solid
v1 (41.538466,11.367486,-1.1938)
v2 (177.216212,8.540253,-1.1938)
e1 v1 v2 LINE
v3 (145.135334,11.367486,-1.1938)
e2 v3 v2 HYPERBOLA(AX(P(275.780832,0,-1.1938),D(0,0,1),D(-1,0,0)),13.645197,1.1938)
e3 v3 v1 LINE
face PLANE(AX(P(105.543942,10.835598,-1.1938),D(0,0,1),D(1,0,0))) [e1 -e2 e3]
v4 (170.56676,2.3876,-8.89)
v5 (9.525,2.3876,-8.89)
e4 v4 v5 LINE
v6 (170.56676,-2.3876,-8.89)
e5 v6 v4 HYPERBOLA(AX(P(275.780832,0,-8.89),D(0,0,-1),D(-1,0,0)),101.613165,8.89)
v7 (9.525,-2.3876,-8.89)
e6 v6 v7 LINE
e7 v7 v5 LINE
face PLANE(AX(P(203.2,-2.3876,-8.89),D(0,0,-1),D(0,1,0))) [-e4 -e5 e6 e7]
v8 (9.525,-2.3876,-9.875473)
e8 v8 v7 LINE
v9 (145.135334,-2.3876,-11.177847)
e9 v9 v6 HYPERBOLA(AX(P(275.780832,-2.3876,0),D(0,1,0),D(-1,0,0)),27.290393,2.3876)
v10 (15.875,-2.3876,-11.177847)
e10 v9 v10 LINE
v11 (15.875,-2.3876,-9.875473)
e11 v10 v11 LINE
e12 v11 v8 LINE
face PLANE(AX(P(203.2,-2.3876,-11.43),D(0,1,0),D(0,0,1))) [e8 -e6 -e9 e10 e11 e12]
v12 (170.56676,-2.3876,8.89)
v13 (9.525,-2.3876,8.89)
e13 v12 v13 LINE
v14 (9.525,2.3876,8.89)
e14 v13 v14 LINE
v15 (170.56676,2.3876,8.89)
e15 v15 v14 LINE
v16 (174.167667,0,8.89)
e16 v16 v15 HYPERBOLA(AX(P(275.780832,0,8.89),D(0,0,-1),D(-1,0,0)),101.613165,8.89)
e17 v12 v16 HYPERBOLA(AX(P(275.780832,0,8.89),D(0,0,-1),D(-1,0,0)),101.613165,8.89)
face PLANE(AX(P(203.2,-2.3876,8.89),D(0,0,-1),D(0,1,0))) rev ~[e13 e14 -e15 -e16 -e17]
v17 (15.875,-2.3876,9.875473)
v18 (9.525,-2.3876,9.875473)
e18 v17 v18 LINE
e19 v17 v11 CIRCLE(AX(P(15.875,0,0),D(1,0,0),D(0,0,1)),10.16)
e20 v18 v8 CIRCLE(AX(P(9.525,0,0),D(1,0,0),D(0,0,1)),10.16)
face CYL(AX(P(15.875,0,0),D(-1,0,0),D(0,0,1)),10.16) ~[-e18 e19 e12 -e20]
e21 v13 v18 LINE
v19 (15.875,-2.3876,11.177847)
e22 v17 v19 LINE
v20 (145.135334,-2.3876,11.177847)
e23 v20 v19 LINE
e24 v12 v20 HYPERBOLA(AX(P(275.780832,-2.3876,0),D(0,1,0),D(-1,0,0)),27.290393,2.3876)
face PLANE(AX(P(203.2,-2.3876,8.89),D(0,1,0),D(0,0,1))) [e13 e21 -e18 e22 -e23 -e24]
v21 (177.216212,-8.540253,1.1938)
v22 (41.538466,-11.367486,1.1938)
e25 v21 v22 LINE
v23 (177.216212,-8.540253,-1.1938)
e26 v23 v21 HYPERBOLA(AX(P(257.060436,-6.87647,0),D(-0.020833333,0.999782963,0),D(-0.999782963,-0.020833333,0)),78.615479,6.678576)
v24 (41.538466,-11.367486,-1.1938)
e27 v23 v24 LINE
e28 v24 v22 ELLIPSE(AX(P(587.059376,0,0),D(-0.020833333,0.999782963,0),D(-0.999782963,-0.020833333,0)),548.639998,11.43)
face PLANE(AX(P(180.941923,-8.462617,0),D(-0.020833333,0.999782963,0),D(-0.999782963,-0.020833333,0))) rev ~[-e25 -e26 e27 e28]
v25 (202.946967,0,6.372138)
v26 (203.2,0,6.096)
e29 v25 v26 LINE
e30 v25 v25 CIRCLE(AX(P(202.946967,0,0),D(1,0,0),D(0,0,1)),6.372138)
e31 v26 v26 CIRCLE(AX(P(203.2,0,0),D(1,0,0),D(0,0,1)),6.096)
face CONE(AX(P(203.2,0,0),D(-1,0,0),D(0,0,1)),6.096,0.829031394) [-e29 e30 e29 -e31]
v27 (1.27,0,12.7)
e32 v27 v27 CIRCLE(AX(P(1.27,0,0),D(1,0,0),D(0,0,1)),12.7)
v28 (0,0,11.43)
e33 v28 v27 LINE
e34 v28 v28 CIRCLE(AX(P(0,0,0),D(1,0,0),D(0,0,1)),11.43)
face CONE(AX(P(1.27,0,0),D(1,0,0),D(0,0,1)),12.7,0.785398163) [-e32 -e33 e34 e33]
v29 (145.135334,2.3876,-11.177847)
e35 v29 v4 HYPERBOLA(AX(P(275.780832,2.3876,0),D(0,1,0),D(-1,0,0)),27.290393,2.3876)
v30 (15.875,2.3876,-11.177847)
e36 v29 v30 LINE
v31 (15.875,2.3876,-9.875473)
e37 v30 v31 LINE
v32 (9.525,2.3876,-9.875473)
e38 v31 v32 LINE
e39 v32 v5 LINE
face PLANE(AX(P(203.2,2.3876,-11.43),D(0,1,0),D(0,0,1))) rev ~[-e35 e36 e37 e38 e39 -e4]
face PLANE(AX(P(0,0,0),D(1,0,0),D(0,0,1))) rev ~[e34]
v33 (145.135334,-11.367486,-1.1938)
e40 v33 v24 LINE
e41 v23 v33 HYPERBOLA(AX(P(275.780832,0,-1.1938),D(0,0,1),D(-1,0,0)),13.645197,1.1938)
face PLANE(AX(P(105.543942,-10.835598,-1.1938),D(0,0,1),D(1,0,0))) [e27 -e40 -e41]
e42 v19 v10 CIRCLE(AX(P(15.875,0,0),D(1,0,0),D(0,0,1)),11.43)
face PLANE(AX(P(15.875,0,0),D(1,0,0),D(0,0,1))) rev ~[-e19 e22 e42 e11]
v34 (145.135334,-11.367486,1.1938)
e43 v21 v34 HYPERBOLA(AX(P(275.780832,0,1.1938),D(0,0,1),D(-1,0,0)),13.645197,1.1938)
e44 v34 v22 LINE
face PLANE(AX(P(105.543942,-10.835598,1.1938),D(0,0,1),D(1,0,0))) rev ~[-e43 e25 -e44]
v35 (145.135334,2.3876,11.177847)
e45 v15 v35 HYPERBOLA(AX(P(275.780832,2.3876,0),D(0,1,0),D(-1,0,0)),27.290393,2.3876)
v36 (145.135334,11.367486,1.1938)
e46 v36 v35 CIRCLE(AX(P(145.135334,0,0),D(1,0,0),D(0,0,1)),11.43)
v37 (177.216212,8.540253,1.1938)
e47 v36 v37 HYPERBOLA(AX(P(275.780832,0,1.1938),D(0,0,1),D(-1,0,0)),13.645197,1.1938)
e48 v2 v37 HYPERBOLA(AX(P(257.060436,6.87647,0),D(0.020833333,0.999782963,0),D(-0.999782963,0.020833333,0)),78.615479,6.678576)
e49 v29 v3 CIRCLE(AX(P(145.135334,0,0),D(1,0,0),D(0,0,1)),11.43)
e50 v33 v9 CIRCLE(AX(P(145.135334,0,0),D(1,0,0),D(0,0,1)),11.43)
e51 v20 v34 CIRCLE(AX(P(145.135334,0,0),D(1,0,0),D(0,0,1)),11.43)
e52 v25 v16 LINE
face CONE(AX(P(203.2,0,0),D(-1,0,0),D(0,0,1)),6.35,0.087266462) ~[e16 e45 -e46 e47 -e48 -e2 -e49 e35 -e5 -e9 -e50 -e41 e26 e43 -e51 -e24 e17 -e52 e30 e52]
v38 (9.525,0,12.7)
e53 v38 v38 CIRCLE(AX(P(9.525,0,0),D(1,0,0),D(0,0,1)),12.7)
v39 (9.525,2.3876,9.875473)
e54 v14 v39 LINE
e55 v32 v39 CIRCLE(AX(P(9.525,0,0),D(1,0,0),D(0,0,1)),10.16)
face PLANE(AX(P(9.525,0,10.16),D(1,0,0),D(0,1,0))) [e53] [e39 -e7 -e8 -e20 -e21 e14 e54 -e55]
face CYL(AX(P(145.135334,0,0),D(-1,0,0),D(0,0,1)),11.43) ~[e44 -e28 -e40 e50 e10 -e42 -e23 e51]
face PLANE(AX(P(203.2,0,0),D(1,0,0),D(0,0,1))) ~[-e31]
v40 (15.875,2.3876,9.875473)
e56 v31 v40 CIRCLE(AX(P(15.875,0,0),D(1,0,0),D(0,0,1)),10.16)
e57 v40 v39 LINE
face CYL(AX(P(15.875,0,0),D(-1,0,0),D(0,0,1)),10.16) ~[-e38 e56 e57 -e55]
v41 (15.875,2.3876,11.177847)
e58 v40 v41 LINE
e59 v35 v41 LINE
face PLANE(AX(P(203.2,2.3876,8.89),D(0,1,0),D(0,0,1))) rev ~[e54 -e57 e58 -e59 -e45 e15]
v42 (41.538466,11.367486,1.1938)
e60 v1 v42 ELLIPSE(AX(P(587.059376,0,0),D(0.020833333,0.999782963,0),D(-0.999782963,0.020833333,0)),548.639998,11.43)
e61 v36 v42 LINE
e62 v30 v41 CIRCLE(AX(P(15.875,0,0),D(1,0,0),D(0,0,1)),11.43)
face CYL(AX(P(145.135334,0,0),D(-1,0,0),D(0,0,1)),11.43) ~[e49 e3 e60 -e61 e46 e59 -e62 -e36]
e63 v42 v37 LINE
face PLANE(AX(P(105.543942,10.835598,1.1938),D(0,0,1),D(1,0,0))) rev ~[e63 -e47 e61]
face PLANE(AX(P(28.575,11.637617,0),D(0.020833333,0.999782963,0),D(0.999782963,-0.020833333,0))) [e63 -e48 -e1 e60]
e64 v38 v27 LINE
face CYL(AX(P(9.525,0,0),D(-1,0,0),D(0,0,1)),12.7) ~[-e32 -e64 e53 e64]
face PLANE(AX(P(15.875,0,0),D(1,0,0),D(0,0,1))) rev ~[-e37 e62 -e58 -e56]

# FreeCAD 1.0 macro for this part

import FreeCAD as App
import Part
import Sketcher

V = App.Vector
Q = App.Units.Quantity


def edges_at(feature, points):
    """Names of the edges that pass closest to the given points."""
    edges = feature.Shape.Edges
    near = lambda p: min(range(len(edges)), key=lambda i: edges[i].distToShape(Part.Vertex(*p))[0])
    return sorted({f"Edge{near(p) + 1}" for p in points})

doc = App.newDocument("Part")
body = doc.addObject("PartDesign::Body", "Body")

# Sketch on XZ plane
sketch1 = body.newObject("Sketcher::SketchObject", "Sketch")
sketch1.AttachmentSupport = (doc.getObject("XZ_Plane"), [""])
sketch1.MapMode = "FlatFace"
sketch1.addGeometry([
    Part.LineSegment(V(0, 12.7, 0), V(0, 0, 0)),  # 0
    Part.LineSegment(V(0, 0, 0), V(203.2, 0, 0)),  # 1
    Part.LineSegment(V(203.2, 0, 0), V(203.2, 6.3, 0)),  # 2
    Part.LineSegment(V(203.2, 6.3, 0), V(145.1, 11.4, 0)),  # 3
    Part.LineSegment(V(145.1, 11.4, 0), V(15.9, 11.4, 0)),  # 4
    Part.LineSegment(V(15.9, 11.4, 0), V(15.9, 10.2, 0)),  # 5
    Part.LineSegment(V(15.9, 10.2, 0), V(9.5, 10.2, 0)),  # 6
    Part.LineSegment(V(9.5, 10.2, 0), V(9.5, 12.7, 0)),  # 7
    Part.LineSegment(V(9.5, 12.7, 0), V(0, 12.7, 0)),  # 8
], False)
sketch1.addConstraint([
    Sketcher.Constraint("Coincident", 0, 2, 1, 1),
    Sketcher.Constraint("Coincident", 1, 2, 2, 1),
    Sketcher.Constraint("Coincident", 2, 2, 3, 1),
    Sketcher.Constraint("Coincident", 3, 2, 4, 1),
    Sketcher.Constraint("Coincident", 4, 2, 5, 1),
    Sketcher.Constraint("Coincident", 5, 2, 6, 1),
    Sketcher.Constraint("Coincident", 6, 2, 7, 1),
    Sketcher.Constraint("Coincident", 7, 2, 8, 1),
    Sketcher.Constraint("Coincident", 8, 2, 0, 1),
    Sketcher.Constraint("Vertical", 0),
    Sketcher.Constraint("Horizontal", 1),
    Sketcher.Constraint("Vertical", 2),
    Sketcher.Constraint("Horizontal", 4),
    Sketcher.Constraint("Vertical", 5),
    Sketcher.Constraint("Horizontal", 6),
    Sketcher.Constraint("Vertical", 7),
    Sketcher.Constraint("Horizontal", 8),
    Sketcher.Constraint("Coincident", 0, 2, -1, 1),
    Sketcher.Constraint("Equal", 6, 2),
    Sketcher.Constraint("DistanceX", 1, 1, 1, 2, Q("8 in")),
    Sketcher.Constraint("DistanceY", 0, 2, 0, 1, Q("0.5 in")),
    Sketcher.Constraint("DistanceY", 7, 1, 7, 2, Q("0.1 in")),
    Sketcher.Constraint("Angle", 3, Q("175 deg")),
    Sketcher.Constraint("DistanceX", 6, 2, 6, 1, Q("0.25 in")),
    Sketcher.Constraint("DistanceY", 5, 2, 5, 1, Q("0.05 in")),
    Sketcher.Constraint("DistanceX", 8, 2, 8, 1, Q("0.375 in")),
])
revolution = body.newObject("PartDesign::Revolution", "Revolution")
revolution.Profile = sketch1
revolution.ReferenceAxis = (sketch1, ["H_Axis"])
revolution.Angle = 360
doc.recompute()

chamfer = body.newObject("PartDesign::Chamfer", "Chamfer")
chamfer.Base = (revolution, edges_at(revolution, [(0, 0, -12.7)]))
chamfer.Size = Q("0.05 in")
doc.recompute()

chamfer2 = body.newObject("PartDesign::Chamfer", "Chamfer001")
chamfer2.Base = (chamfer, edges_at(chamfer, [(203.2, 0, -6.35)]))
chamfer2.Size = Q("0.01 in")

# Sketch on YZ plane
sketch2 = body.newObject("Sketcher::SketchObject", "Sketch001")
sketch2.AttachmentSupport = (doc.getObject("YZ_Plane"), [""])
sketch2.MapMode = "FlatFace"
sketch2.AttachmentOffset = App.Placement(V(0, 0, 8 * 25.4), App.Rotation())
sketch2.addGeometry([
    Part.LineSegment(V(-2.4, 11.4, 0), V(-2.4, 8.9, 0)),  # 0
    Part.LineSegment(V(-2.4, 8.9, 0), V(2.4, 8.9, 0)),  # 1
    Part.LineSegment(V(2.4, 8.9, 0), V(2.4, 11.4, 0)),  # 2
    Part.LineSegment(V(2.4, 11.4, 0), V(-2.4, 11.4, 0)),  # 3
    Part.LineSegment(V(-2.4, -8.9, 0), V(-2.4, -11.4, 0)),  # 4
    Part.LineSegment(V(-2.4, -11.4, 0), V(2.4, -11.4, 0)),  # 5
    Part.LineSegment(V(2.4, -11.4, 0), V(2.4, -8.9, 0)),  # 6
    Part.LineSegment(V(2.4, -8.9, 0), V(-2.4, -8.9, 0)),  # 7
], False)
sketch2.addConstraint([
    Sketcher.Constraint("Coincident", 0, 2, 1, 1),
    Sketcher.Constraint("Coincident", 1, 2, 2, 1),
    Sketcher.Constraint("Coincident", 2, 2, 3, 1),
    Sketcher.Constraint("Coincident", 3, 2, 0, 1),
    Sketcher.Constraint("Coincident", 4, 2, 5, 1),
    Sketcher.Constraint("Coincident", 5, 2, 6, 1),
    Sketcher.Constraint("Coincident", 6, 2, 7, 1),
    Sketcher.Constraint("Coincident", 7, 2, 4, 1),
    Sketcher.Constraint("Vertical", 0),
    Sketcher.Constraint("Horizontal", 1),
    Sketcher.Constraint("Vertical", 2),
    Sketcher.Constraint("Horizontal", 3),
    Sketcher.Constraint("Vertical", 4),
    Sketcher.Constraint("Horizontal", 5),
    Sketcher.Constraint("Vertical", 6),
    Sketcher.Constraint("Horizontal", 7),
    Sketcher.Constraint("Symmetric", 2, 2, 4, 2, -1, 1),
    Sketcher.Constraint("Symmetric", 0, 2, 6, 2, -1, 1),
    Sketcher.Constraint("Vertical", 3, 2, 4, 2),
    Sketcher.Constraint("DistanceY", 0, 2, 0, 1, Q("0.1 in")),
    Sketcher.Constraint("DistanceY", 4, 2, 0, 2, Q("0.8 in")),
    Sketcher.Constraint("DistanceX", 1, 1, 1, 2, Q("0.188 in")),
])
pocket1 = body.newObject("PartDesign::Pocket", "Pocket")
pocket1.Profile = sketch2
pocket1.Length = Q("7.625 in")

# Sketch on XY plane
sketch3 = body.newObject("Sketcher::SketchObject", "Sketch002")
sketch3.AttachmentSupport = (doc.getObject("XY_Plane"), [""])
sketch3.MapMode = "FlatFace"
sketch3.addGeometry([
    Part.LineSegment(V(28.6, 11.6, 0), V(180.9, 8.5, 0)),  # 0
    Part.LineSegment(V(180.9, 8.5, 0), V(180.9, 11.6, 0)),  # 1
    Part.LineSegment(V(180.9, 11.6, 0), V(28.6, 11.6, 0)),  # 2
    Part.LineSegment(V(180.9, -8.5, 0), V(28.6, -11.6, 0)),  # 3
    Part.LineSegment(V(28.6, -11.6, 0), V(180.9, -11.6, 0)),  # 4
    Part.LineSegment(V(180.9, -11.6, 0), V(180.9, -8.5, 0)),  # 5
], False)
sketch3.addConstraint([
    Sketcher.Constraint("Coincident", 0, 2, 1, 1),
    Sketcher.Constraint("Coincident", 1, 2, 2, 1),
    Sketcher.Constraint("Coincident", 2, 2, 0, 1),
    Sketcher.Constraint("Coincident", 3, 2, 4, 1),
    Sketcher.Constraint("Coincident", 4, 2, 5, 1),
    Sketcher.Constraint("Coincident", 5, 2, 3, 1),
    Sketcher.Constraint("Vertical", 1),
    Sketcher.Constraint("Horizontal", 2),
    Sketcher.Constraint("Horizontal", 4),
    Sketcher.Constraint("Vertical", 5),
    Sketcher.Constraint("Symmetric", 2, 2, 3, 2, -1),
    Sketcher.Constraint("Symmetric", 0, 2, 5, 2, -1),
    Sketcher.Constraint("Distance", 0, Q("6 in")),
    Sketcher.Constraint("DistanceY", 1, 1, 1, 2, Q("0.125 in")),
    Sketcher.Constraint("DistanceX", -1, 1, 2, 2, Q("1.125 in")),
    Sketcher.Constraint("DistanceY", -1, 1, 0, 2, Q("8.462617 mm")),
])
pocket2 = body.newObject("PartDesign::Pocket", "Pocket001")
pocket2.Profile = sketch3
pocket2.Length = Q("0.094 in")
pocket2.Midplane = True

doc.recompute()
